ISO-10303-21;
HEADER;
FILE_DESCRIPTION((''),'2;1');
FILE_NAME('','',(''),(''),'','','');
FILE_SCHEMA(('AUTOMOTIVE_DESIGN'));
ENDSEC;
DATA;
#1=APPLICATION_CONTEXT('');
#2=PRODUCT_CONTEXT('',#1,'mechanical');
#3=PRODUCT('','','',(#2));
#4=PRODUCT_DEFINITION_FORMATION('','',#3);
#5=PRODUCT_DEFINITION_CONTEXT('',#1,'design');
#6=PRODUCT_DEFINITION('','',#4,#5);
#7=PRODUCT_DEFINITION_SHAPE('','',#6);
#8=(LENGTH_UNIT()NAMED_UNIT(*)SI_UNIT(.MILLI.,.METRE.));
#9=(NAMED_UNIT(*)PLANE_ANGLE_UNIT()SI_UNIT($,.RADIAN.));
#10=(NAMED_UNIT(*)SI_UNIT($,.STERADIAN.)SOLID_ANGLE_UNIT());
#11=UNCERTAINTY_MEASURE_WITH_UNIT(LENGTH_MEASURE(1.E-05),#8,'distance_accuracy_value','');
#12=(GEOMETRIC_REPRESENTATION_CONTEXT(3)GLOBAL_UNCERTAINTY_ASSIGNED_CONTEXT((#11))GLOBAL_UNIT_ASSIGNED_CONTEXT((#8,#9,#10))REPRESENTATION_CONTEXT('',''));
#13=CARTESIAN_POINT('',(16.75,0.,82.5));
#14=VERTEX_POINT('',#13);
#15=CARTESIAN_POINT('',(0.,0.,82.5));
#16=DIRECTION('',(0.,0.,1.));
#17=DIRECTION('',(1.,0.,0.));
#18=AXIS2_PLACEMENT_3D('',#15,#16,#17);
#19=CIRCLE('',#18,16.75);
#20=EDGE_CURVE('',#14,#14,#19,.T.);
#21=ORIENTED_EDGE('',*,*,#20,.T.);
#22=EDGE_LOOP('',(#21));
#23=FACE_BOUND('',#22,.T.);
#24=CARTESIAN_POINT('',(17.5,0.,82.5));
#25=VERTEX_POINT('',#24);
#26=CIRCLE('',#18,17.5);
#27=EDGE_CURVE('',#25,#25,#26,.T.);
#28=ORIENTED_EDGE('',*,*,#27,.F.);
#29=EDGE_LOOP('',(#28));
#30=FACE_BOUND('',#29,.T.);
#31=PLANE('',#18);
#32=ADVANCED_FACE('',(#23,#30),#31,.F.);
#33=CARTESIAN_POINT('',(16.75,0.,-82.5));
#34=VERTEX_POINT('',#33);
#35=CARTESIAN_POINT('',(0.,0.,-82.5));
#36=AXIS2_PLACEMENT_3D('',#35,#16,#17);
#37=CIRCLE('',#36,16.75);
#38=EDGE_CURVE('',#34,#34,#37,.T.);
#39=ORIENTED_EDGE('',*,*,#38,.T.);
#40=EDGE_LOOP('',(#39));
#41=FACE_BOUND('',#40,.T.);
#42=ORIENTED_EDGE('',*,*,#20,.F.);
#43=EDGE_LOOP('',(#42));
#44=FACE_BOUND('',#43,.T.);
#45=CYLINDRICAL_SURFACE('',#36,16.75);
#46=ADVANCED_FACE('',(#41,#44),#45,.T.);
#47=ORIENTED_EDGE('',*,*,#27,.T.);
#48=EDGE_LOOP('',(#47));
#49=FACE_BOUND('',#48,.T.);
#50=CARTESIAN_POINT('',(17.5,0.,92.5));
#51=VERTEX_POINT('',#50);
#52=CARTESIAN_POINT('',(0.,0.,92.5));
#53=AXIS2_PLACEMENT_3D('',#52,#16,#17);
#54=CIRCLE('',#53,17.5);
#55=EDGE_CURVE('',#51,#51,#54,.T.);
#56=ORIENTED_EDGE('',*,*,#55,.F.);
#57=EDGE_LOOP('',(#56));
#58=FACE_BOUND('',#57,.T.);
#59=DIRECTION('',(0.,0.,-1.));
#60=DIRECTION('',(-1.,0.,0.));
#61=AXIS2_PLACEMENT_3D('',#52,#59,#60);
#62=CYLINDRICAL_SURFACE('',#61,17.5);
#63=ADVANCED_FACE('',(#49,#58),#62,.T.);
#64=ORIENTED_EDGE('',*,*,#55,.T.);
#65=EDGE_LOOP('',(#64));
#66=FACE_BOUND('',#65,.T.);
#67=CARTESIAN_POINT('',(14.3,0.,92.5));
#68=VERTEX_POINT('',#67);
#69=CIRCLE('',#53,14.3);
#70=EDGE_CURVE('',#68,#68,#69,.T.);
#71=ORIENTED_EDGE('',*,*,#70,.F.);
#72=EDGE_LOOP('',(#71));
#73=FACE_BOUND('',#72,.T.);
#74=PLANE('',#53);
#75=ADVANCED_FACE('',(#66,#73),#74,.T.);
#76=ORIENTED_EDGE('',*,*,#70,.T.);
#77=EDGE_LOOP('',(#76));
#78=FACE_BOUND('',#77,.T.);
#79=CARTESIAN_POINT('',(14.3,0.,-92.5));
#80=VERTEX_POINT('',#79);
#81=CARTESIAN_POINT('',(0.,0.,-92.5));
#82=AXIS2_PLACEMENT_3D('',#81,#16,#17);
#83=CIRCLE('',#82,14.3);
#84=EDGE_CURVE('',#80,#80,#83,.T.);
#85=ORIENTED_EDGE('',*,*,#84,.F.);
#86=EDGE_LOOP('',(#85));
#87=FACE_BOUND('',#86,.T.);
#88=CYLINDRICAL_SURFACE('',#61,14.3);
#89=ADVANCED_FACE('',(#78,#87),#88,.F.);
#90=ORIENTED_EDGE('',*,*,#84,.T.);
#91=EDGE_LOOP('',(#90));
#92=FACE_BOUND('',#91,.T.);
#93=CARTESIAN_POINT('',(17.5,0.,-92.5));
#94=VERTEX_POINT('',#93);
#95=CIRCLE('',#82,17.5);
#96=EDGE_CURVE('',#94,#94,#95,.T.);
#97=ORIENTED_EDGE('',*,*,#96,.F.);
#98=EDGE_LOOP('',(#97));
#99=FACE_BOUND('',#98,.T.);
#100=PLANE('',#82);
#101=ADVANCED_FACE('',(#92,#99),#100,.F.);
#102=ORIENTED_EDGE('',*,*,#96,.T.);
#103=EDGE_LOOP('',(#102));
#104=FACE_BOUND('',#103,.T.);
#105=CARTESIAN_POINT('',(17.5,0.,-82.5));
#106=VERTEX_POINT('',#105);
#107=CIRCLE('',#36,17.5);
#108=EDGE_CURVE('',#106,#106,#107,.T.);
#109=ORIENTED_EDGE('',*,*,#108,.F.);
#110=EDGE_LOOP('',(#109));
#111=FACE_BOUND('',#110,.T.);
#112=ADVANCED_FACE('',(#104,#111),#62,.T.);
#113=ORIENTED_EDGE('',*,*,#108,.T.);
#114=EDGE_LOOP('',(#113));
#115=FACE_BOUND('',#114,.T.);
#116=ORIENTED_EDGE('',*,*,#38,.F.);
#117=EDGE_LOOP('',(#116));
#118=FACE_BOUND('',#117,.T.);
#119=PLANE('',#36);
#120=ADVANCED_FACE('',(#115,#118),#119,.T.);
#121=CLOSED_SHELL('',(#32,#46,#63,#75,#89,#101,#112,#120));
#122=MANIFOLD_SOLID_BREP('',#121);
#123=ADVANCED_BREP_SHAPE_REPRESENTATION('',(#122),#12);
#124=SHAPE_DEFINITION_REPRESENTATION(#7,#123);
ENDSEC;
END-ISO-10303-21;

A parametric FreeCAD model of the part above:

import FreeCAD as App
import Part
import Sketcher

V = App.Vector
Q = App.Units.Quantity


def add_polygon(sketch, points):
    """Adds a closed chain of lines whose ends are joined by coincident constraints."""
    first, n = sketch.GeometryCount, len(points)
    for a, b in zip(points, points[1:] + points[:1]):
        sketch.addGeometry(Part.LineSegment(App.Vector(*a, 0), App.Vector(*b, 0)), False)
    for i in range(n):
        sketch.addConstraint(Sketcher.Constraint("Coincident", first + i, 2, first + (i + 1) % n, 1))

doc = App.newDocument("Part")
params = doc.addObject("Spreadsheet::Sheet", "Params")
for row, (alias, value) in enumerate([
    ("sketch1_diameter", "35 mm"),
    ("sketch1_diameter2", "28.6 mm"),
    ("pad1_length", "185 mm"),
    ("sketch2_diameter", "33.5 mm"),
    ("pocket1_length", "165 mm"),
], start=1):
    params.set(f"A{row}", alias)
    params.set(f"B{row}", "=" + value)
    params.setAlias(f"B{row}", alias)

body = doc.addObject("PartDesign::Body", "Body")

# Sketch on XY plane
sketch1 = body.newObject("Sketcher::SketchObject", "Sketch")
sketch1.AttachmentSupport = (doc.getObject("XY_Plane"), [""])
sketch1.MapMode = "FlatFace"
sketch1.addGeometry(Part.Circle(V(0, 0, 0), V(0, 0, 1), 18), False)
sketch1.addGeometry(Part.Circle(V(0, 0, 0), V(0, 0, 1), 14), False)
sketch1.addConstraint(Sketcher.Constraint("Coincident", 0, 3, -1, 1))
sketch1.addConstraint(Sketcher.Constraint("Coincident", 1, 3, -1, 1))
sketch1.addConstraint(Sketcher.Constraint("Diameter", 0, Q("35 mm")))
sketch1.addConstraint(Sketcher.Constraint("Diameter", 1, Q("28.6 mm")))
sketch1.setExpression("Constraints[2]", "Params.sketch1_diameter")
sketch1.setExpression("Constraints[3]", "Params.sketch1_diameter2")
pad1 = body.newObject("PartDesign::Pad", "Pad")
pad1.Profile = sketch1
pad1.setExpression("Length", "Params.pad1_length")
pad1.Midplane = True

# Sketch on XY plane
sketch2 = body.newObject("Sketcher::SketchObject", "Sketch001")
sketch2.AttachmentSupport = (doc.getObject("XY_Plane"), [""])
sketch2.MapMode = "FlatFace"
add_polygon(sketch2, [(-38, 38), (-38, -38), (38, -38), (38, 38)])  # lines 0-3
sketch2.addGeometry(Part.Circle(V(0, 0, 0), V(0, 0, 1), 17), False)  # 4
sketch2.addConstraint(Sketcher.Constraint("Vertical", 0))
sketch2.addConstraint(Sketcher.Constraint("Horizontal", 1))
sketch2.addConstraint(Sketcher.Constraint("Vertical", 2))
sketch2.addConstraint(Sketcher.Constraint("Horizontal", 3))
sketch2.addConstraint(Sketcher.Constraint("Coincident", 4, 3, -1, 1))
sketch2.addConstraint(Sketcher.Constraint("Symmetric", 0, 2, 2, 2, -1, 1))
sketch2.addConstraint(Sketcher.Constraint("Equal", 3, 0))
sketch2.addConstraint(Sketcher.Constraint("Diameter", 4, Q("33.5 mm")))
sketch2.addConstraint(Sketcher.Constraint("DistanceX", 1, 1, 1, 2, Q("75.302 mm")))
sketch2.setExpression("Constraints[11]", "Params.sketch2_diameter")
pocket1 = body.newObject("PartDesign::Pocket", "Pocket")
pocket1.Profile = sketch2
pocket1.setExpression("Length", "Params.pocket1_length")
pocket1.Midplane = True

doc.recompute()
